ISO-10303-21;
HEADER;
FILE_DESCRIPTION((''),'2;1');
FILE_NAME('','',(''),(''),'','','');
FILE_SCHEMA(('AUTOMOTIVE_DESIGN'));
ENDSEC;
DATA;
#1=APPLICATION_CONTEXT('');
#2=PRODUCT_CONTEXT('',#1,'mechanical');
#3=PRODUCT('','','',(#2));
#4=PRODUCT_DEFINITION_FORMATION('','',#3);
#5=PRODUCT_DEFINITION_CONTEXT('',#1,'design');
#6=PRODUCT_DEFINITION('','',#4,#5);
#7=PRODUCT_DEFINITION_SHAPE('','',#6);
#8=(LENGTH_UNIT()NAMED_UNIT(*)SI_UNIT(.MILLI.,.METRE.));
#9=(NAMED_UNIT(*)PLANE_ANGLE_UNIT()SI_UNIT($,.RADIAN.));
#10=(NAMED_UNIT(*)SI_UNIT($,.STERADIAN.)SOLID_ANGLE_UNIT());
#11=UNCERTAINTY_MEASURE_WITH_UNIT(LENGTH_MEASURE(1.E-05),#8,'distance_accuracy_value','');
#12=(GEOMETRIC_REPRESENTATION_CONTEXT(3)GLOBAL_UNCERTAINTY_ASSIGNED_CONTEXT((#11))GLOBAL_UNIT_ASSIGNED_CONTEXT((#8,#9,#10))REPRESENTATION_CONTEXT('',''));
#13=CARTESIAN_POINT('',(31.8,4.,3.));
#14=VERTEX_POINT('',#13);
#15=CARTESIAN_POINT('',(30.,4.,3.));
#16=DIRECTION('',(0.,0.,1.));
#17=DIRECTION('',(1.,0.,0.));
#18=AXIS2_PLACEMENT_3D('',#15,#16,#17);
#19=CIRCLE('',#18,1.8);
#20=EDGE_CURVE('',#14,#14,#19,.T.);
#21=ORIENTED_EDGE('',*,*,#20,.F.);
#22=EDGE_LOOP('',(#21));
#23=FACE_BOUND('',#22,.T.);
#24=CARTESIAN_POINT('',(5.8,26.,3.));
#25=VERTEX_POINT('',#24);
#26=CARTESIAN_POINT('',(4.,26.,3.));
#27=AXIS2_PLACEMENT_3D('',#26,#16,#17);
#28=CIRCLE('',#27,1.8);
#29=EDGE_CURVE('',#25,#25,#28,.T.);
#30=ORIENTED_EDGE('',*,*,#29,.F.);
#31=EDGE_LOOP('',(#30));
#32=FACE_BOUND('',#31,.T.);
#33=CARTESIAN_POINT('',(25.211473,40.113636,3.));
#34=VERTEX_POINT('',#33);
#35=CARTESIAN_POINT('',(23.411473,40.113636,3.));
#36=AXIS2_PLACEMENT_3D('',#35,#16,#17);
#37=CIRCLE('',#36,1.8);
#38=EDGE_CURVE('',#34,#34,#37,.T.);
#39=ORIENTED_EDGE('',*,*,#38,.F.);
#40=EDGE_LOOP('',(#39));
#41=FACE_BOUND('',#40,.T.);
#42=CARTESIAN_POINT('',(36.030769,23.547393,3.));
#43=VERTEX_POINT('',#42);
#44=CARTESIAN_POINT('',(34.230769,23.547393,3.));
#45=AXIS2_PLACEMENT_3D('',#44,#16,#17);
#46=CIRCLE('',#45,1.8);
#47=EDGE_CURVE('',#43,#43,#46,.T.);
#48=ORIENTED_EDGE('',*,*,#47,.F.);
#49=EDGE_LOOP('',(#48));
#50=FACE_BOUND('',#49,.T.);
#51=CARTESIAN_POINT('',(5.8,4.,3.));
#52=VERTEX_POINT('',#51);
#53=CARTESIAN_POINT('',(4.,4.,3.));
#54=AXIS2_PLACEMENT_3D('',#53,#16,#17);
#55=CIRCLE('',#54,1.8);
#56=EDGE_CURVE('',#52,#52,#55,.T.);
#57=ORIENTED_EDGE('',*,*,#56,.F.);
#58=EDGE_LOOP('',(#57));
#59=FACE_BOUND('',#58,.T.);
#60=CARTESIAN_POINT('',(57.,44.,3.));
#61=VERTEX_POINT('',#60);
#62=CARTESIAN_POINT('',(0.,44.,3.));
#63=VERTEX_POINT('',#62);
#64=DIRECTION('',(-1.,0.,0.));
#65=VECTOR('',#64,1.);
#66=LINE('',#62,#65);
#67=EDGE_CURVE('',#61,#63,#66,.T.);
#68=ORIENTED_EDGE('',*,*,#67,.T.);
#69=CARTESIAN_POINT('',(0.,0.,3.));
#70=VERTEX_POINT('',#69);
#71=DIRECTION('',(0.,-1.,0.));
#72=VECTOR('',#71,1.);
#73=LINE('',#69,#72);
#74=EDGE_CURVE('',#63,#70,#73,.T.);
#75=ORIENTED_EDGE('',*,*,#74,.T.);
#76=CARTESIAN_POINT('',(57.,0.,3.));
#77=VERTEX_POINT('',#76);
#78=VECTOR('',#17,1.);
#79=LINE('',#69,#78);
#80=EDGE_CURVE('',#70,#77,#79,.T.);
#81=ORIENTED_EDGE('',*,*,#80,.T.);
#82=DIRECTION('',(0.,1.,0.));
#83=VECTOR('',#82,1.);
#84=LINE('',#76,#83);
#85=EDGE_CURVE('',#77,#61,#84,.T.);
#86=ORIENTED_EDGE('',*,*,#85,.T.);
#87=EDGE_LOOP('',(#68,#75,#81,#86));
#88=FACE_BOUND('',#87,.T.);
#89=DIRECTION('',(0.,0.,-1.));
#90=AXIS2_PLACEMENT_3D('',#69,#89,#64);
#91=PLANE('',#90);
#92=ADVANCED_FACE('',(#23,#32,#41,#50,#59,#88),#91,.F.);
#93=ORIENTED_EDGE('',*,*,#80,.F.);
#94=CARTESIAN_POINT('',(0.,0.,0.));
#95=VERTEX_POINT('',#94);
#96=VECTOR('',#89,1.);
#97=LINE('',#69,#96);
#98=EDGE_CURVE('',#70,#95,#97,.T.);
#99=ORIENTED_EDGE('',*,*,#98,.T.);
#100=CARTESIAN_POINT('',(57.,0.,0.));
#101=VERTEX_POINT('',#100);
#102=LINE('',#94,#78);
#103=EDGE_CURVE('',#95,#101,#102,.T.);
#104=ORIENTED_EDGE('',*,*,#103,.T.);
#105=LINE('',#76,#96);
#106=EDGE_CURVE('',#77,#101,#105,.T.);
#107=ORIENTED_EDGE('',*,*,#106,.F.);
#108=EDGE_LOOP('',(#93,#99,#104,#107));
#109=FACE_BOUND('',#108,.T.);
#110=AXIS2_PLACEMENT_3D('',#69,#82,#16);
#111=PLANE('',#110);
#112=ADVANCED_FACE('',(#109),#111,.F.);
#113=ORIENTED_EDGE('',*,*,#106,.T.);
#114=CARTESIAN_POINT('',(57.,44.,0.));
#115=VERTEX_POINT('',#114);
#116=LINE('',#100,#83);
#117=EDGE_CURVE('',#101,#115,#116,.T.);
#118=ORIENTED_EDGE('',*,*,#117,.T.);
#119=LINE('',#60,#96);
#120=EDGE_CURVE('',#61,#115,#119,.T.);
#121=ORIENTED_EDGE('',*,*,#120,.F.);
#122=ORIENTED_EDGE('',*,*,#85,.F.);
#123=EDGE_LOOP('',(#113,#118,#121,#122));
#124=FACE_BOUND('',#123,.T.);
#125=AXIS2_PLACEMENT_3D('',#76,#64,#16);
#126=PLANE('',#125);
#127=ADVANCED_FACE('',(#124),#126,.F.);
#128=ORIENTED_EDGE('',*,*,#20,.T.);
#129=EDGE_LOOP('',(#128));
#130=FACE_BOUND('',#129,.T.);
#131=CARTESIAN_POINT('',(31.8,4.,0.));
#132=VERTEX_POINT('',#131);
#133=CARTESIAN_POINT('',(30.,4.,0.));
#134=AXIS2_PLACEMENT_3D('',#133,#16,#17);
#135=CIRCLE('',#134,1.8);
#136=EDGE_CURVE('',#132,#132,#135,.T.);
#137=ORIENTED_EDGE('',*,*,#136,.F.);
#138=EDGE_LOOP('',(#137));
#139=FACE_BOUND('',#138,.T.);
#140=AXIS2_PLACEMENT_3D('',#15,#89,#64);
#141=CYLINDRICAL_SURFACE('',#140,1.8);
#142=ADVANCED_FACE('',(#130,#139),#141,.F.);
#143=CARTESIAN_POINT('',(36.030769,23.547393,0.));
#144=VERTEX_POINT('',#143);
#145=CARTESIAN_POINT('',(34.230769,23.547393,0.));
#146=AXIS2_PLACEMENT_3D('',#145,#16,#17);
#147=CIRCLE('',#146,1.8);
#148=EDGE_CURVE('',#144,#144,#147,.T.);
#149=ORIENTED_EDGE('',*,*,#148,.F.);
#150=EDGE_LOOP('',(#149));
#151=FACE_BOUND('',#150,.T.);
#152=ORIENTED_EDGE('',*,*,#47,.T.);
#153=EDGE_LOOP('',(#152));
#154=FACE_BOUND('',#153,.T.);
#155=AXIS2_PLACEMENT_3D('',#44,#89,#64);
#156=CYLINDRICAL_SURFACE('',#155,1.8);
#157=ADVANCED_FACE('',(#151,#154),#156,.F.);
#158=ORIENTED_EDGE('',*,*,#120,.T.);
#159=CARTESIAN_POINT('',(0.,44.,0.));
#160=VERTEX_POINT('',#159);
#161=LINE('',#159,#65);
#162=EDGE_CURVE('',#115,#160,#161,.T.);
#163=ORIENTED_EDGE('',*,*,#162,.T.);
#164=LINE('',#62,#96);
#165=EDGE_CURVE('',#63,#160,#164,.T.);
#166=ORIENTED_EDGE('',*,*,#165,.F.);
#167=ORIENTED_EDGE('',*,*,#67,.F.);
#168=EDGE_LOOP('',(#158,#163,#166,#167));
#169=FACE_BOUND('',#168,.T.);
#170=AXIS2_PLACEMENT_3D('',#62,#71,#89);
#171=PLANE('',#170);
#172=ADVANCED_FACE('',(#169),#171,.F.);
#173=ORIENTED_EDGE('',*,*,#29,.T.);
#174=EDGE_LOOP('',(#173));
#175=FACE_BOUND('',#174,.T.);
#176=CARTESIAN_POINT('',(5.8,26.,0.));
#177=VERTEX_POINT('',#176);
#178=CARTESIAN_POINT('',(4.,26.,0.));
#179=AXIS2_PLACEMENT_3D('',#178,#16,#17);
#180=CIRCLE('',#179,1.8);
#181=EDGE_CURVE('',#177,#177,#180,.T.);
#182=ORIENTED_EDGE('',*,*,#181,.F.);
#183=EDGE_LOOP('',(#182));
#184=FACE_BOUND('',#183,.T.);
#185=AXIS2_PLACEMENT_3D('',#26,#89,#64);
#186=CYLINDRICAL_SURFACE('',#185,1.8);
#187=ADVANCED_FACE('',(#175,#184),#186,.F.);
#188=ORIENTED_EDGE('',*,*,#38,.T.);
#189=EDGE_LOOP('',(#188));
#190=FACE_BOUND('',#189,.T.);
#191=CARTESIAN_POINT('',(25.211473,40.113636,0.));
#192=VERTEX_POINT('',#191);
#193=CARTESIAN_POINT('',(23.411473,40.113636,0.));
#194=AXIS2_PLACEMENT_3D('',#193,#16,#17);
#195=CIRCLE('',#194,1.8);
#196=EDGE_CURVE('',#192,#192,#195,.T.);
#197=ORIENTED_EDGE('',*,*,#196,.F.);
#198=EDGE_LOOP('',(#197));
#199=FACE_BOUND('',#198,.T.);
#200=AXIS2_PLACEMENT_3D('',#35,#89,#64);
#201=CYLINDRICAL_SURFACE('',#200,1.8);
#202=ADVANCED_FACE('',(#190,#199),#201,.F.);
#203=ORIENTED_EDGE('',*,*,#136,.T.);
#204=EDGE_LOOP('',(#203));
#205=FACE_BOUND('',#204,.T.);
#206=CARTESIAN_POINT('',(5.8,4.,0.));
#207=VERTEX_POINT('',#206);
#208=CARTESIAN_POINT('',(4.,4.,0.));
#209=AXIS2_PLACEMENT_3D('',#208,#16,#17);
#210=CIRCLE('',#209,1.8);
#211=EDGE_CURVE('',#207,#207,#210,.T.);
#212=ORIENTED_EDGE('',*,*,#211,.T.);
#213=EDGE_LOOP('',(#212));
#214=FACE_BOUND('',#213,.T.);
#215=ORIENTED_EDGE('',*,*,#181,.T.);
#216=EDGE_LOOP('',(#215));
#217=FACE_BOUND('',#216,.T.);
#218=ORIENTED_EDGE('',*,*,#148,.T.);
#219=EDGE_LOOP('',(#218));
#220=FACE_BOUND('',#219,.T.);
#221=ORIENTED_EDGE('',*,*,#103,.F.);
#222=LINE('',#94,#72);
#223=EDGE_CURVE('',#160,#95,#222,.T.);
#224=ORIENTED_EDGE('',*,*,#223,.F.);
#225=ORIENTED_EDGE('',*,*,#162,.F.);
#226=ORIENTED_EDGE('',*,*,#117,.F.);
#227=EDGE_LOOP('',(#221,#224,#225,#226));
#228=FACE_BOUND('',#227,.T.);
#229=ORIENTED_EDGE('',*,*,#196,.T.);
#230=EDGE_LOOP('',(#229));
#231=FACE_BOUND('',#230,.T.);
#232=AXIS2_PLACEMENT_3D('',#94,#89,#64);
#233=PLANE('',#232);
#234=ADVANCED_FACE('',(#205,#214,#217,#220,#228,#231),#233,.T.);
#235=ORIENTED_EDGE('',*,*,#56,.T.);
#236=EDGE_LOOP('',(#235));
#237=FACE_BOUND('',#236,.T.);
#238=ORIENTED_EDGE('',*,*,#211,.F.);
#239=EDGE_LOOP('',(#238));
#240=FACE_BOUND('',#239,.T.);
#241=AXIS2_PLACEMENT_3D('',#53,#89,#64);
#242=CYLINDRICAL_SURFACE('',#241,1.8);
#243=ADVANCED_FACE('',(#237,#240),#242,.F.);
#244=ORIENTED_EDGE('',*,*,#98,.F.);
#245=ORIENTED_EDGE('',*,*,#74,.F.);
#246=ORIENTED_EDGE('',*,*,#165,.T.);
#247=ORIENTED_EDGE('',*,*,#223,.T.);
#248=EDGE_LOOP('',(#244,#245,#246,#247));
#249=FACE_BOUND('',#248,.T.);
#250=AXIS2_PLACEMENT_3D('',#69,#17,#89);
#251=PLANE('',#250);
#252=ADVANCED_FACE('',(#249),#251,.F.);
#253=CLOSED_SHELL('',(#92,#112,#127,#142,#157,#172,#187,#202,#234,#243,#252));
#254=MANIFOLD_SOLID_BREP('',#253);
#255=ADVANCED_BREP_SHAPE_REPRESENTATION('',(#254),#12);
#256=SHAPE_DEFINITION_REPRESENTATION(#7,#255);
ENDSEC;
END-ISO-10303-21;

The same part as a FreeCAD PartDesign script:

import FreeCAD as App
import Part
import Sketcher

V = App.Vector

doc = App.newDocument("Part")
body = doc.addObject("PartDesign::Body", "Body")

sketch1 = body.newObject("Sketcher::SketchObject", "Sketch")
sketch1.AttachmentSupport = (doc.getObject("XY_Plane"), [""])
sketch1.MapMode = "FlatFace"
sketch1.addGeometry([
    Part.LineSegment(V(0, 44, 0), V(0, 0, 0)),
    Part.LineSegment(V(0, 0, 0), V(57, 0, 0)),
    Part.LineSegment(V(57, 0, 0), V(57, 44, 0)),
    Part.LineSegment(V(57, 44, 0), V(0, 44, 0)),
    Part.Circle(V(4, 4, 0), V(0, 0, 1), 1.8),
    Part.Circle(V(30, 4, 0), V(0, 0, 1), 1.8),
    Part.Circle(V(4, 26, 0), V(0, 0, 1), 1.8),
    Part.Circle(V(34.2, 23.5, 0), V(0, 0, 1), 1.8),
    Part.Circle(V(23.4, 40.1, 0), V(0, 0, 1), 1.8),
], False)
sketch1.addConstraint([
    Sketcher.Constraint("Coincident", 0, 2, 1, 1),
    Sketcher.Constraint("Coincident", 1, 2, 2, 1),
    Sketcher.Constraint("Coincident", 2, 2, 3, 1),
    Sketcher.Constraint("Coincident", 3, 2, 0, 1),
    Sketcher.Constraint("Vertical", 0),
    Sketcher.Constraint("Horizontal", 1),
    Sketcher.Constraint("Vertical", 2),
    Sketcher.Constraint("Horizontal", 3),
    Sketcher.Constraint("Coincident", 0, 2, -1, 1),
    Sketcher.Constraint("Equal", 4, 5),
    Sketcher.Constraint("Equal", 5, 6),
    Sketcher.Constraint("Equal", 6, 7),
    Sketcher.Constraint("Equal", 7, 8),
    Sketcher.Constraint("Horizontal", 4, 3, 5, 3),
    Sketcher.Constraint("Vertical", 4, 3, 6, 3),
    Sketcher.Constraint("Diameter", 4, 3.6),
    Sketcher.Constraint("DistanceX", 1, 1, 1, 2, 57.0),
    Sketcher.Constraint("DistanceY", 0, 2, 0, 1, 44.0),
    Sketcher.Constraint("DistanceX", -1, 1, 4, 3, 4.0),
    Sketcher.Constraint("DistanceY", -1, 1, 4, 3, 4.0),
    Sketcher.Constraint("DistanceX", -1, 1, 5, 3, 30.0),
    Sketcher.Constraint("DistanceY", -1, 1, 6, 3, 26.0),
    Sketcher.Constraint("DistanceX", -1, 1, 7, 3, 34.230769),
    Sketcher.Constraint("DistanceY", -1, 1, 7, 3, 23.547393),
    Sketcher.Constraint("DistanceX", -1, 1, 8, 3, 23.411473),
    Sketcher.Constraint("DistanceY", -1, 1, 8, 3, 40.113636),
])
pad1 = body.newObject("PartDesign::Pad", "Pad")
pad1.Profile = sketch1
pad1.Length = 3

doc.recompute()
